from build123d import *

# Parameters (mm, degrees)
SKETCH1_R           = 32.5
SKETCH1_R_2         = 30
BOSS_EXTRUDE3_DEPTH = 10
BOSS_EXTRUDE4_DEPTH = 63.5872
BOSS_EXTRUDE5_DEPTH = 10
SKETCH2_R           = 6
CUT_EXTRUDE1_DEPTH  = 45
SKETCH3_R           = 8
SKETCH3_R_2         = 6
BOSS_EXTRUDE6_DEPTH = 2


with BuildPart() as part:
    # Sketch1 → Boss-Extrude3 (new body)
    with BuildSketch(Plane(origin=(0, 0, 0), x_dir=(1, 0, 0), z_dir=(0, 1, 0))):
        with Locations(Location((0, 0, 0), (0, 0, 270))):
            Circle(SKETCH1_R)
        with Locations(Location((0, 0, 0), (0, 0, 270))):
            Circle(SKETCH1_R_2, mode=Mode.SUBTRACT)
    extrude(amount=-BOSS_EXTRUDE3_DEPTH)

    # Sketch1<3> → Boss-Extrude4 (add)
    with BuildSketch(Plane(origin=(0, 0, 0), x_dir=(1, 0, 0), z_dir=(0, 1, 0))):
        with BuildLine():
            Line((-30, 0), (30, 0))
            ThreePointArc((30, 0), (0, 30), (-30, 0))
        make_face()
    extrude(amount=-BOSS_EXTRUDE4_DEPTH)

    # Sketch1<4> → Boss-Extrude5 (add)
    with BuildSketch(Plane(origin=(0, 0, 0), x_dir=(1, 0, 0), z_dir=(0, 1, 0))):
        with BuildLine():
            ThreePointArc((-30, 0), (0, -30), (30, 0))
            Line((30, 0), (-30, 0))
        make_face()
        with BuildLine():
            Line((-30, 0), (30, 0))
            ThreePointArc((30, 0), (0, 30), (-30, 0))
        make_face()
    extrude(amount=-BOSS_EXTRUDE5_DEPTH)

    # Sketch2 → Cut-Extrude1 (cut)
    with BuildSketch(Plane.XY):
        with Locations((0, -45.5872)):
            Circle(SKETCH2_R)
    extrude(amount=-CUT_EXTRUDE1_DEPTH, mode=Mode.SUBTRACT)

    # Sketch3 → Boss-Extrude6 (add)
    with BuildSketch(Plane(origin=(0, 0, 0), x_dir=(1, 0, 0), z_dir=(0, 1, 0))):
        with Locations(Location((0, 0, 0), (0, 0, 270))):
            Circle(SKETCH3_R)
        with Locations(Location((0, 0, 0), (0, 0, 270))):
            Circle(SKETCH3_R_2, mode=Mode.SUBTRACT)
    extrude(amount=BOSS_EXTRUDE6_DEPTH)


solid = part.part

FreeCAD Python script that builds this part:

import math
import FreeCAD as App
import Part
import Sketcher
Q = App.Units.Quantity

doc = App.newDocument("Part")
body = doc.addObject("PartDesign::Body", "Body")

sketch1 = doc.addObject("Sketcher::SketchObject", "Sketch")
body.addObject(sketch1)
sketch1.AttachmentSupport = (doc.XZ_Plane, [""])
sketch1.MapMode = "FlatFace"
sketch1.addGeometry([
    Part.Circle(App.Vector(0, 0, 0), App.Vector(0, 0, 1), 32),
    Part.Circle(App.Vector(0, 0, 0), App.Vector(0, 0, 1), 30),
], False)
sketch1.addConstraint([
    Sketcher.Constraint("Coincident", 0, 3, -1, 1),
    Sketcher.Constraint("Coincident", 1, 3, -1, 1),
    Sketcher.Constraint("Diameter", 0, Q("65 mm")),
    Sketcher.Constraint("Diameter", 1, Q("60 mm")),
])
pad1 = doc.addObject("PartDesign::Pad", "Pad")
body.addObject(pad1)
pad1.Profile = sketch1
pad1.Length = 10

sketch2 = doc.addObject("Sketcher::SketchObject", "Sketch001")
body.addObject(sketch2)
sketch2.AttachmentSupport = (doc.XZ_Plane, [""])
sketch2.MapMode = "FlatFace"
sketch2.addGeometry([
    Part.LineSegment(App.Vector(-30, 0, 0), App.Vector(30, 0, 0)),
    Part.ArcOfCircle(Part.Circle(App.Vector(0, 0, 0), App.Vector(0, 0, 1), 30), math.radians(180), math.radians(360)),
], False)
sketch2.addConstraint([
    Sketcher.Constraint("Coincident", 0, 1, 1, 1),
    Sketcher.Constraint("Coincident", 1, 2, 0, 2),
    Sketcher.Constraint("Horizontal", 0),
    Sketcher.Constraint("Coincident", 1, 3, -1, 1),
    Sketcher.Constraint("PointOnObject", 0, 1, -1),
    Sketcher.Constraint("Radius", 1, Q("30 mm")),
])
pad2 = doc.addObject("PartDesign::Pad", "Pad001")
body.addObject(pad2)
pad2.Profile = sketch2
pad2.Length = 63.5872

sketch3 = doc.addObject("Sketcher::SketchObject", "Sketch002")
body.addObject(sketch3)
sketch3.AttachmentSupport = (doc.XZ_Plane, [""])
sketch3.MapMode = "FlatFace"
sketch3.addGeometry(Part.Circle(App.Vector(0, 0, 0), App.Vector(0, 0, 1), 30), False)
sketch3.addConstraint([
    Sketcher.Constraint("Coincident", 0, 3, -1, 1),
    Sketcher.Constraint("Diameter", 0, Q("60 mm")),
])
pad3 = doc.addObject("PartDesign::Pad", "Pad002")
body.addObject(pad3)
pad3.Profile = sketch3
pad3.Length = 10

sketch4 = doc.addObject("Sketcher::SketchObject", "Sketch003")
body.addObject(sketch4)
sketch4.AttachmentSupport = (doc.XY_Plane, [""])
sketch4.MapMode = "FlatFace"
sketch4.addGeometry(Part.Circle(App.Vector(0, -46, 0), App.Vector(0, 0, 1), 6), False)
sketch4.addConstraint([
    Sketcher.Constraint("PointOnObject", 0, 3, -2),
    Sketcher.Constraint("Diameter", 0, Q("12 mm")),
    Sketcher.Constraint("DistanceY", 0, 3, -1, 1, Q("45.5872 mm")),
])
pocket1 = doc.addObject("PartDesign::Pocket", "Pocket")
body.addObject(pocket1)
pocket1.Profile = sketch4
pocket1.Length = 45

sketch5 = doc.addObject("Sketcher::SketchObject", "Sketch004")
body.addObject(sketch5)
sketch5.AttachmentSupport = (doc.XZ_Plane, [""])
sketch5.MapMode = "FlatFace"
sketch5.addGeometry([
    Part.Circle(App.Vector(0, 0, 0), App.Vector(0, 0, 1), 8),
    Part.Circle(App.Vector(0, 0, 0), App.Vector(0, 0, 1), 6),
], False)
sketch5.addConstraint([
    Sketcher.Constraint("Coincident", 0, 3, -1, 1),
    Sketcher.Constraint("Coincident", 1, 3, -1, 1),
    Sketcher.Constraint("Diameter", 0, Q("16 mm")),
    Sketcher.Constraint("Diameter", 1, Q("12 mm")),
])
pad4 = doc.addObject("PartDesign::Pad", "Pad003")
body.addObject(pad4)
pad4.Profile = sketch5
pad4.Length = 2
pad4.Reversed = True

doc.recompute()
